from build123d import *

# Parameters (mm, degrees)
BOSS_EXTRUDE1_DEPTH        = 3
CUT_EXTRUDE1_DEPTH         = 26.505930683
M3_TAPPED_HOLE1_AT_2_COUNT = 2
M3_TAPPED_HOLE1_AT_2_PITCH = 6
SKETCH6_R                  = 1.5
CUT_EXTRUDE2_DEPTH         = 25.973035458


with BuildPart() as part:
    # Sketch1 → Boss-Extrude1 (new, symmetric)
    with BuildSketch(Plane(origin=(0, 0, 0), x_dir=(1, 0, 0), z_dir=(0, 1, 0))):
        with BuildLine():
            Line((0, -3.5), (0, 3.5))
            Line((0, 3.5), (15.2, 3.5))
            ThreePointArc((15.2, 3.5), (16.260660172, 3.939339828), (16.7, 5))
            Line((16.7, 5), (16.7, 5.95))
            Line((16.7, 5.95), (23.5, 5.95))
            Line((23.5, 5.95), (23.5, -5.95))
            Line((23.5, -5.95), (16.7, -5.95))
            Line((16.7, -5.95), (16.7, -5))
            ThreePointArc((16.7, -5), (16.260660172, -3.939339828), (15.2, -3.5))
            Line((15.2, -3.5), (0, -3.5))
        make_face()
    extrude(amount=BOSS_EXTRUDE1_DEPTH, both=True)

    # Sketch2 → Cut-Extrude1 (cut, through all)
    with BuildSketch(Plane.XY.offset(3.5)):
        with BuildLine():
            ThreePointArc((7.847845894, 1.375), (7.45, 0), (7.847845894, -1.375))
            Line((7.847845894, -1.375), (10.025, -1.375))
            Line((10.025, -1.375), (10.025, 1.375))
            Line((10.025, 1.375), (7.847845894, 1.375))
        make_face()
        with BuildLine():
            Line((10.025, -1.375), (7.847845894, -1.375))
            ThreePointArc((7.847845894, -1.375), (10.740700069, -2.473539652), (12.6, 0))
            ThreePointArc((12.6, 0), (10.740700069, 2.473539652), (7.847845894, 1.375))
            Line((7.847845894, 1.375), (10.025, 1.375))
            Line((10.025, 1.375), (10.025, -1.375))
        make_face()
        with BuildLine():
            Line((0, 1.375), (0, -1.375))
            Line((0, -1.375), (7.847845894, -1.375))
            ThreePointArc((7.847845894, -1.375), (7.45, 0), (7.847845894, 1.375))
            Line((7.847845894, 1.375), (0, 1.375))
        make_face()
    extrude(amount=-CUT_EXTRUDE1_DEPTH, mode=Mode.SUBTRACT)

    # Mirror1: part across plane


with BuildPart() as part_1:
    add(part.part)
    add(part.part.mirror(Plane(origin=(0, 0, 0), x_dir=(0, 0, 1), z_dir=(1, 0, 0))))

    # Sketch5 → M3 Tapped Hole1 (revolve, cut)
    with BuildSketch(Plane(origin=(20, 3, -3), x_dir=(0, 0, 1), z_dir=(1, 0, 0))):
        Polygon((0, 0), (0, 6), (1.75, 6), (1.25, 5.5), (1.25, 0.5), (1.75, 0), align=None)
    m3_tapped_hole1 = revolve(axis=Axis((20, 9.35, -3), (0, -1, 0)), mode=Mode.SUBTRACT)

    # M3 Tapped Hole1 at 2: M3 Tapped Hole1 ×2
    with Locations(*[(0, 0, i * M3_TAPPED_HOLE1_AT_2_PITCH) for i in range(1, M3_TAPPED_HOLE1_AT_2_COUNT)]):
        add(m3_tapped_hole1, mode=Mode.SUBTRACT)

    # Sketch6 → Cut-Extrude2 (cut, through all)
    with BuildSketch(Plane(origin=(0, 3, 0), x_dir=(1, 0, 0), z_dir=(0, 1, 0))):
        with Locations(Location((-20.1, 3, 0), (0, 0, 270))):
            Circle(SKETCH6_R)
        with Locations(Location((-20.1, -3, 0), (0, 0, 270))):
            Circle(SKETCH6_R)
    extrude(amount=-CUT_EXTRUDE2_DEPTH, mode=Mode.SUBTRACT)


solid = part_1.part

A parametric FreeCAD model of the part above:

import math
import FreeCAD as App
import Part
import Sketcher

V = App.Vector


def add_polygon(sketch, points):
    """Adds a closed chain of lines whose ends are joined by coincident constraints."""
    first, n = sketch.GeometryCount, len(points)
    for a, b in zip(points, points[1:] + points[:1]):
        sketch.addGeometry(Part.LineSegment(App.Vector(*a, 0), App.Vector(*b, 0)), False)
    for i in range(n):
        sketch.addConstraint(Sketcher.Constraint("Coincident", first + i, 2, first + (i + 1) % n, 1))

doc = App.newDocument("Part")
body = doc.addObject("PartDesign::Body", "Body")

# Sketch on XZ plane
sketch1 = body.newObject("Sketcher::SketchObject", "Sketch")
sketch1.AttachmentSupport = (doc.getObject("XZ_Plane"), [""])
sketch1.MapMode = "FlatFace"
sketch1.addGeometry([
    Part.LineSegment(V(0, -3.5, 0), V(0, 3.5, 0)),  # 0
    Part.LineSegment(V(0, 3.5, 0), V(15.2, 3.5, 0)),  # 1
    Part.ArcOfCircle(Part.Circle(V(15.2, 5, 0), V(0, 0, 1), 1.5), math.radians(-90), math.radians(0)),  # 2
    Part.LineSegment(V(16.7, 5, 0), V(16.7, 6, 0)),  # 3
    Part.LineSegment(V(16.7, 6, 0), V(23.5, 6, 0)),  # 4
    Part.LineSegment(V(23.5, 6, 0), V(23.5, -6, 0)),  # 5
    Part.LineSegment(V(23.5, -6, 0), V(16.7, -6, 0)),  # 6
    Part.LineSegment(V(16.7, -6, 0), V(16.7, -5, 0)),  # 7
    Part.ArcOfCircle(Part.Circle(V(15.2, -5, 0), V(0, 0, 1), 1.5), math.radians(0), math.radians(90)),  # 8
    Part.LineSegment(V(15.2, -3.5, 0), V(0, -3.5, 0)),  # 9
], False)
sketch1.addConstraint([
    Sketcher.Constraint("Coincident", 0, 2, 1, 1),
    Sketcher.Constraint("Tangent", 1, 2, 2, 1),
    Sketcher.Constraint("Tangent", 2, 2, 3, 1),
    Sketcher.Constraint("Coincident", 3, 2, 4, 1),
    Sketcher.Constraint("Coincident", 4, 2, 5, 1),
    Sketcher.Constraint("Coincident", 5, 2, 6, 1),
    Sketcher.Constraint("Coincident", 6, 2, 7, 1),
    Sketcher.Constraint("Tangent", 7, 2, 8, 1),
    Sketcher.Constraint("Tangent", 8, 2, 9, 1),
    Sketcher.Constraint("Coincident", 9, 2, 0, 1),
    Sketcher.Constraint("Vertical", 0),
    Sketcher.Constraint("Horizontal", 1),
    Sketcher.Constraint("Vertical", 3),
    Sketcher.Constraint("Horizontal", 4),
    Sketcher.Constraint("Vertical", 5),
    Sketcher.Constraint("Horizontal", 6),
    Sketcher.Constraint("Vertical", 7),
    Sketcher.Constraint("Horizontal", 9),
    Sketcher.Constraint("Equal", 2, 8),
    Sketcher.Constraint("Symmetric", 0, 2, 9, 2, -1, 1),
    Sketcher.Constraint("Symmetric", 3, 2, 6, 2, -1),
    Sketcher.Constraint("Radius", 2, 1.5),
    Sketcher.Constraint("DistanceY", 0, 1, 0, 2, 7.0),
    Sketcher.Constraint("DistanceX", 1, 1, 1, 2, 15.2),
    Sketcher.Constraint("DistanceX", 4, 1, 4, 2, 6.8),
    Sketcher.Constraint("DistanceY", 5, 2, 5, 1, 11.9),
])
pad1 = body.newObject("PartDesign::Pad", "Pad")
pad1.Profile = sketch1
pad1.Length = 6
pad1.Midplane = True

# Sketch on XY plane
sketch2 = body.newObject("Sketcher::SketchObject", "Sketch001")
sketch2.AttachmentSupport = (doc.getObject("XY_Plane"), [""])
sketch2.MapMode = "FlatFace"
sketch2.AttachmentOffset = App.Placement(V(0, 0, 3.5), App.Rotation())
sketch2.addGeometry([
    Part.ArcOfCircle(Part.Circle(V(10, 0, 0), V(0, 0, 1), 2.6), math.radians(-148), math.radians(0)),  # 0
    Part.ArcOfCircle(Part.Circle(V(10, 0, 0), V(0, 0, 1), 2.6), math.radians(0), math.radians(148)),  # 1
    Part.LineSegment(V(7.8, 1.4, 0), V(0, 1.4, 0)),  # 2
    Part.LineSegment(V(0, 1.4, 0), V(0, -1.4, 0)),  # 3
    Part.LineSegment(V(0, -1.4, 0), V(7.8, -1.4, 0)),  # 4
], False)
sketch2.addConstraint([
    Sketcher.Constraint("Tangent", 0, 2, 1, 1),
    Sketcher.Constraint("Coincident", 1, 2, 2, 1),
    Sketcher.Constraint("Coincident", 2, 2, 3, 1),
    Sketcher.Constraint("Coincident", 3, 2, 4, 1),
    Sketcher.Constraint("Coincident", 4, 2, 0, 1),
    Sketcher.Constraint("Horizontal", 2),
    Sketcher.Constraint("Vertical", 3),
    Sketcher.Constraint("Horizontal", 4),
    Sketcher.Constraint("Equal", 0, 1),
    Sketcher.Constraint("Symmetric", 2, 2, 3, 2, -1, 1),
    Sketcher.Constraint("PointOnObject", 0, 3, -1),
    Sketcher.Constraint("PointOnObject", 0, 2, -1),
    Sketcher.Constraint("Radius", 0, 2.575),
    Sketcher.Constraint("DistanceY", 3, 2, 3, 1, 2.75),
    Sketcher.Constraint("DistanceX", -1, 1, 0, 2, 12.6),
])
pocket1 = body.newObject("PartDesign::Pocket", "Pocket")
pocket1.Profile = sketch2
pocket1.Type = "ThroughAll"
body2 = doc.addObject("PartDesign::Body", "Body001")
doc.recompute()

body2.BaseFeature = body
doc.recompute()

mirroring = doc.addObject("Part::Mirroring", "Mirroring")
mirroring.Source = body
mirroring.Base = V(0, 0, 0)
mirroring.Normal = V(1, 0, 0)
body3 = doc.addObject("PartDesign::Body", "Body002")
body3.BaseFeature = mirroring
boolean = body2.newObject("PartDesign::Boolean", "Boolean")
boolean.Type = "Fuse"
boolean.addObjects([body3])
doc.recompute()

# Sketch on YZ plane
sketch3 = body2.newObject("Sketcher::SketchObject", "Sketch002")
sketch3.AttachmentSupport = (doc.getObject("YZ_Plane001"), [""])
sketch3.MapMode = "FlatFace"
sketch3.AttachmentOffset = App.Placement(V(0, 0, 20), App.Rotation())
add_polygon(sketch3, [(-3, -3), (3, -3), (3, -1.2), (2.5, -1.8), (-2.5, -1.8), (-3, -1.2)])  # lines 0-5
sketch3.addGeometry(Part.LineSegment(V(3, -3, 0), V(-3, -3, 0)), True)  # axis
sketch3.addConstraint([
    Sketcher.Constraint("Horizontal", 0),
    Sketcher.Constraint("Vertical", 1),
    Sketcher.Constraint("Horizontal", 3),
    Sketcher.Constraint("Vertical", 5),
    Sketcher.Constraint("Horizontal", 6),
    Sketcher.Constraint("Coincident", 6, 1, 0, 2),
    Sketcher.Constraint("Symmetric", 1, 2, 4, 2, -2),
    Sketcher.Constraint("Perpendicular", 2, 4),
    Sketcher.Constraint("Vertical", 4, 2, 6, 2),
    Sketcher.Constraint("Equal", 2, 4),
    Sketcher.Constraint("DistanceX", 0, 1, 0, 2, 6.0),
    Sketcher.Constraint("DistanceX", 3, 2, 3, 1, 5.0),
    Sketcher.Constraint("DistanceY", 0, 2, -1, 1, 3.0),
    Sketcher.Constraint("DistanceY", 1, 1, 1, 2, 1.75),
])
groove = body2.newObject("PartDesign::Groove", "Groove")
groove.Profile = sketch3
groove.ReferenceAxis = (sketch3, ["Axis0"])
groove.Angle = 360
doc.recompute()

linearpattern = body2.newObject("PartDesign::LinearPattern", "LinearPattern")
linearpattern.Originals = [groove]
linearpattern.Direction = (doc.getObject("Z_Axis001"), [""])
linearpattern.Mode = "offset"
linearpattern.Offset = 6
linearpattern.Occurrences = 2
body2.Tip = linearpattern

# Sketch on XZ plane
sketch4 = body2.newObject("Sketcher::SketchObject", "Sketch003")
sketch4.AttachmentSupport = (doc.getObject("XZ_Plane001"), [""])
sketch4.MapMode = "FlatFace"
sketch4.AttachmentOffset = App.Placement(V(0, 0, -3), App.Rotation())
sketch4.addGeometry([
    Part.Circle(V(-20.1, -3, 0), V(0, 0, 1), 1.5),
    Part.Circle(V(-20.1, 3, 0), V(0, 0, 1), 1.5),
], False)
sketch4.addConstraint([
    Sketcher.Constraint("Equal", 0, 1),
    Sketcher.Constraint("Symmetric", 0, 3, 1, 3, -1),
    Sketcher.Constraint("Diameter", 0, 3.0),
    Sketcher.Constraint("DistanceY", 0, 3, -1, 1, 3.0),
    Sketcher.Constraint("DistanceX", 0, 3, -1, 1, 20.1),
])
pocket2 = body2.newObject("PartDesign::Pocket", "Pocket001")
pocket2.Profile = sketch4
pocket2.Type = "ThroughAll"
pocket2.Reversed = True
mirroring.Visibility = False

doc.recompute()
